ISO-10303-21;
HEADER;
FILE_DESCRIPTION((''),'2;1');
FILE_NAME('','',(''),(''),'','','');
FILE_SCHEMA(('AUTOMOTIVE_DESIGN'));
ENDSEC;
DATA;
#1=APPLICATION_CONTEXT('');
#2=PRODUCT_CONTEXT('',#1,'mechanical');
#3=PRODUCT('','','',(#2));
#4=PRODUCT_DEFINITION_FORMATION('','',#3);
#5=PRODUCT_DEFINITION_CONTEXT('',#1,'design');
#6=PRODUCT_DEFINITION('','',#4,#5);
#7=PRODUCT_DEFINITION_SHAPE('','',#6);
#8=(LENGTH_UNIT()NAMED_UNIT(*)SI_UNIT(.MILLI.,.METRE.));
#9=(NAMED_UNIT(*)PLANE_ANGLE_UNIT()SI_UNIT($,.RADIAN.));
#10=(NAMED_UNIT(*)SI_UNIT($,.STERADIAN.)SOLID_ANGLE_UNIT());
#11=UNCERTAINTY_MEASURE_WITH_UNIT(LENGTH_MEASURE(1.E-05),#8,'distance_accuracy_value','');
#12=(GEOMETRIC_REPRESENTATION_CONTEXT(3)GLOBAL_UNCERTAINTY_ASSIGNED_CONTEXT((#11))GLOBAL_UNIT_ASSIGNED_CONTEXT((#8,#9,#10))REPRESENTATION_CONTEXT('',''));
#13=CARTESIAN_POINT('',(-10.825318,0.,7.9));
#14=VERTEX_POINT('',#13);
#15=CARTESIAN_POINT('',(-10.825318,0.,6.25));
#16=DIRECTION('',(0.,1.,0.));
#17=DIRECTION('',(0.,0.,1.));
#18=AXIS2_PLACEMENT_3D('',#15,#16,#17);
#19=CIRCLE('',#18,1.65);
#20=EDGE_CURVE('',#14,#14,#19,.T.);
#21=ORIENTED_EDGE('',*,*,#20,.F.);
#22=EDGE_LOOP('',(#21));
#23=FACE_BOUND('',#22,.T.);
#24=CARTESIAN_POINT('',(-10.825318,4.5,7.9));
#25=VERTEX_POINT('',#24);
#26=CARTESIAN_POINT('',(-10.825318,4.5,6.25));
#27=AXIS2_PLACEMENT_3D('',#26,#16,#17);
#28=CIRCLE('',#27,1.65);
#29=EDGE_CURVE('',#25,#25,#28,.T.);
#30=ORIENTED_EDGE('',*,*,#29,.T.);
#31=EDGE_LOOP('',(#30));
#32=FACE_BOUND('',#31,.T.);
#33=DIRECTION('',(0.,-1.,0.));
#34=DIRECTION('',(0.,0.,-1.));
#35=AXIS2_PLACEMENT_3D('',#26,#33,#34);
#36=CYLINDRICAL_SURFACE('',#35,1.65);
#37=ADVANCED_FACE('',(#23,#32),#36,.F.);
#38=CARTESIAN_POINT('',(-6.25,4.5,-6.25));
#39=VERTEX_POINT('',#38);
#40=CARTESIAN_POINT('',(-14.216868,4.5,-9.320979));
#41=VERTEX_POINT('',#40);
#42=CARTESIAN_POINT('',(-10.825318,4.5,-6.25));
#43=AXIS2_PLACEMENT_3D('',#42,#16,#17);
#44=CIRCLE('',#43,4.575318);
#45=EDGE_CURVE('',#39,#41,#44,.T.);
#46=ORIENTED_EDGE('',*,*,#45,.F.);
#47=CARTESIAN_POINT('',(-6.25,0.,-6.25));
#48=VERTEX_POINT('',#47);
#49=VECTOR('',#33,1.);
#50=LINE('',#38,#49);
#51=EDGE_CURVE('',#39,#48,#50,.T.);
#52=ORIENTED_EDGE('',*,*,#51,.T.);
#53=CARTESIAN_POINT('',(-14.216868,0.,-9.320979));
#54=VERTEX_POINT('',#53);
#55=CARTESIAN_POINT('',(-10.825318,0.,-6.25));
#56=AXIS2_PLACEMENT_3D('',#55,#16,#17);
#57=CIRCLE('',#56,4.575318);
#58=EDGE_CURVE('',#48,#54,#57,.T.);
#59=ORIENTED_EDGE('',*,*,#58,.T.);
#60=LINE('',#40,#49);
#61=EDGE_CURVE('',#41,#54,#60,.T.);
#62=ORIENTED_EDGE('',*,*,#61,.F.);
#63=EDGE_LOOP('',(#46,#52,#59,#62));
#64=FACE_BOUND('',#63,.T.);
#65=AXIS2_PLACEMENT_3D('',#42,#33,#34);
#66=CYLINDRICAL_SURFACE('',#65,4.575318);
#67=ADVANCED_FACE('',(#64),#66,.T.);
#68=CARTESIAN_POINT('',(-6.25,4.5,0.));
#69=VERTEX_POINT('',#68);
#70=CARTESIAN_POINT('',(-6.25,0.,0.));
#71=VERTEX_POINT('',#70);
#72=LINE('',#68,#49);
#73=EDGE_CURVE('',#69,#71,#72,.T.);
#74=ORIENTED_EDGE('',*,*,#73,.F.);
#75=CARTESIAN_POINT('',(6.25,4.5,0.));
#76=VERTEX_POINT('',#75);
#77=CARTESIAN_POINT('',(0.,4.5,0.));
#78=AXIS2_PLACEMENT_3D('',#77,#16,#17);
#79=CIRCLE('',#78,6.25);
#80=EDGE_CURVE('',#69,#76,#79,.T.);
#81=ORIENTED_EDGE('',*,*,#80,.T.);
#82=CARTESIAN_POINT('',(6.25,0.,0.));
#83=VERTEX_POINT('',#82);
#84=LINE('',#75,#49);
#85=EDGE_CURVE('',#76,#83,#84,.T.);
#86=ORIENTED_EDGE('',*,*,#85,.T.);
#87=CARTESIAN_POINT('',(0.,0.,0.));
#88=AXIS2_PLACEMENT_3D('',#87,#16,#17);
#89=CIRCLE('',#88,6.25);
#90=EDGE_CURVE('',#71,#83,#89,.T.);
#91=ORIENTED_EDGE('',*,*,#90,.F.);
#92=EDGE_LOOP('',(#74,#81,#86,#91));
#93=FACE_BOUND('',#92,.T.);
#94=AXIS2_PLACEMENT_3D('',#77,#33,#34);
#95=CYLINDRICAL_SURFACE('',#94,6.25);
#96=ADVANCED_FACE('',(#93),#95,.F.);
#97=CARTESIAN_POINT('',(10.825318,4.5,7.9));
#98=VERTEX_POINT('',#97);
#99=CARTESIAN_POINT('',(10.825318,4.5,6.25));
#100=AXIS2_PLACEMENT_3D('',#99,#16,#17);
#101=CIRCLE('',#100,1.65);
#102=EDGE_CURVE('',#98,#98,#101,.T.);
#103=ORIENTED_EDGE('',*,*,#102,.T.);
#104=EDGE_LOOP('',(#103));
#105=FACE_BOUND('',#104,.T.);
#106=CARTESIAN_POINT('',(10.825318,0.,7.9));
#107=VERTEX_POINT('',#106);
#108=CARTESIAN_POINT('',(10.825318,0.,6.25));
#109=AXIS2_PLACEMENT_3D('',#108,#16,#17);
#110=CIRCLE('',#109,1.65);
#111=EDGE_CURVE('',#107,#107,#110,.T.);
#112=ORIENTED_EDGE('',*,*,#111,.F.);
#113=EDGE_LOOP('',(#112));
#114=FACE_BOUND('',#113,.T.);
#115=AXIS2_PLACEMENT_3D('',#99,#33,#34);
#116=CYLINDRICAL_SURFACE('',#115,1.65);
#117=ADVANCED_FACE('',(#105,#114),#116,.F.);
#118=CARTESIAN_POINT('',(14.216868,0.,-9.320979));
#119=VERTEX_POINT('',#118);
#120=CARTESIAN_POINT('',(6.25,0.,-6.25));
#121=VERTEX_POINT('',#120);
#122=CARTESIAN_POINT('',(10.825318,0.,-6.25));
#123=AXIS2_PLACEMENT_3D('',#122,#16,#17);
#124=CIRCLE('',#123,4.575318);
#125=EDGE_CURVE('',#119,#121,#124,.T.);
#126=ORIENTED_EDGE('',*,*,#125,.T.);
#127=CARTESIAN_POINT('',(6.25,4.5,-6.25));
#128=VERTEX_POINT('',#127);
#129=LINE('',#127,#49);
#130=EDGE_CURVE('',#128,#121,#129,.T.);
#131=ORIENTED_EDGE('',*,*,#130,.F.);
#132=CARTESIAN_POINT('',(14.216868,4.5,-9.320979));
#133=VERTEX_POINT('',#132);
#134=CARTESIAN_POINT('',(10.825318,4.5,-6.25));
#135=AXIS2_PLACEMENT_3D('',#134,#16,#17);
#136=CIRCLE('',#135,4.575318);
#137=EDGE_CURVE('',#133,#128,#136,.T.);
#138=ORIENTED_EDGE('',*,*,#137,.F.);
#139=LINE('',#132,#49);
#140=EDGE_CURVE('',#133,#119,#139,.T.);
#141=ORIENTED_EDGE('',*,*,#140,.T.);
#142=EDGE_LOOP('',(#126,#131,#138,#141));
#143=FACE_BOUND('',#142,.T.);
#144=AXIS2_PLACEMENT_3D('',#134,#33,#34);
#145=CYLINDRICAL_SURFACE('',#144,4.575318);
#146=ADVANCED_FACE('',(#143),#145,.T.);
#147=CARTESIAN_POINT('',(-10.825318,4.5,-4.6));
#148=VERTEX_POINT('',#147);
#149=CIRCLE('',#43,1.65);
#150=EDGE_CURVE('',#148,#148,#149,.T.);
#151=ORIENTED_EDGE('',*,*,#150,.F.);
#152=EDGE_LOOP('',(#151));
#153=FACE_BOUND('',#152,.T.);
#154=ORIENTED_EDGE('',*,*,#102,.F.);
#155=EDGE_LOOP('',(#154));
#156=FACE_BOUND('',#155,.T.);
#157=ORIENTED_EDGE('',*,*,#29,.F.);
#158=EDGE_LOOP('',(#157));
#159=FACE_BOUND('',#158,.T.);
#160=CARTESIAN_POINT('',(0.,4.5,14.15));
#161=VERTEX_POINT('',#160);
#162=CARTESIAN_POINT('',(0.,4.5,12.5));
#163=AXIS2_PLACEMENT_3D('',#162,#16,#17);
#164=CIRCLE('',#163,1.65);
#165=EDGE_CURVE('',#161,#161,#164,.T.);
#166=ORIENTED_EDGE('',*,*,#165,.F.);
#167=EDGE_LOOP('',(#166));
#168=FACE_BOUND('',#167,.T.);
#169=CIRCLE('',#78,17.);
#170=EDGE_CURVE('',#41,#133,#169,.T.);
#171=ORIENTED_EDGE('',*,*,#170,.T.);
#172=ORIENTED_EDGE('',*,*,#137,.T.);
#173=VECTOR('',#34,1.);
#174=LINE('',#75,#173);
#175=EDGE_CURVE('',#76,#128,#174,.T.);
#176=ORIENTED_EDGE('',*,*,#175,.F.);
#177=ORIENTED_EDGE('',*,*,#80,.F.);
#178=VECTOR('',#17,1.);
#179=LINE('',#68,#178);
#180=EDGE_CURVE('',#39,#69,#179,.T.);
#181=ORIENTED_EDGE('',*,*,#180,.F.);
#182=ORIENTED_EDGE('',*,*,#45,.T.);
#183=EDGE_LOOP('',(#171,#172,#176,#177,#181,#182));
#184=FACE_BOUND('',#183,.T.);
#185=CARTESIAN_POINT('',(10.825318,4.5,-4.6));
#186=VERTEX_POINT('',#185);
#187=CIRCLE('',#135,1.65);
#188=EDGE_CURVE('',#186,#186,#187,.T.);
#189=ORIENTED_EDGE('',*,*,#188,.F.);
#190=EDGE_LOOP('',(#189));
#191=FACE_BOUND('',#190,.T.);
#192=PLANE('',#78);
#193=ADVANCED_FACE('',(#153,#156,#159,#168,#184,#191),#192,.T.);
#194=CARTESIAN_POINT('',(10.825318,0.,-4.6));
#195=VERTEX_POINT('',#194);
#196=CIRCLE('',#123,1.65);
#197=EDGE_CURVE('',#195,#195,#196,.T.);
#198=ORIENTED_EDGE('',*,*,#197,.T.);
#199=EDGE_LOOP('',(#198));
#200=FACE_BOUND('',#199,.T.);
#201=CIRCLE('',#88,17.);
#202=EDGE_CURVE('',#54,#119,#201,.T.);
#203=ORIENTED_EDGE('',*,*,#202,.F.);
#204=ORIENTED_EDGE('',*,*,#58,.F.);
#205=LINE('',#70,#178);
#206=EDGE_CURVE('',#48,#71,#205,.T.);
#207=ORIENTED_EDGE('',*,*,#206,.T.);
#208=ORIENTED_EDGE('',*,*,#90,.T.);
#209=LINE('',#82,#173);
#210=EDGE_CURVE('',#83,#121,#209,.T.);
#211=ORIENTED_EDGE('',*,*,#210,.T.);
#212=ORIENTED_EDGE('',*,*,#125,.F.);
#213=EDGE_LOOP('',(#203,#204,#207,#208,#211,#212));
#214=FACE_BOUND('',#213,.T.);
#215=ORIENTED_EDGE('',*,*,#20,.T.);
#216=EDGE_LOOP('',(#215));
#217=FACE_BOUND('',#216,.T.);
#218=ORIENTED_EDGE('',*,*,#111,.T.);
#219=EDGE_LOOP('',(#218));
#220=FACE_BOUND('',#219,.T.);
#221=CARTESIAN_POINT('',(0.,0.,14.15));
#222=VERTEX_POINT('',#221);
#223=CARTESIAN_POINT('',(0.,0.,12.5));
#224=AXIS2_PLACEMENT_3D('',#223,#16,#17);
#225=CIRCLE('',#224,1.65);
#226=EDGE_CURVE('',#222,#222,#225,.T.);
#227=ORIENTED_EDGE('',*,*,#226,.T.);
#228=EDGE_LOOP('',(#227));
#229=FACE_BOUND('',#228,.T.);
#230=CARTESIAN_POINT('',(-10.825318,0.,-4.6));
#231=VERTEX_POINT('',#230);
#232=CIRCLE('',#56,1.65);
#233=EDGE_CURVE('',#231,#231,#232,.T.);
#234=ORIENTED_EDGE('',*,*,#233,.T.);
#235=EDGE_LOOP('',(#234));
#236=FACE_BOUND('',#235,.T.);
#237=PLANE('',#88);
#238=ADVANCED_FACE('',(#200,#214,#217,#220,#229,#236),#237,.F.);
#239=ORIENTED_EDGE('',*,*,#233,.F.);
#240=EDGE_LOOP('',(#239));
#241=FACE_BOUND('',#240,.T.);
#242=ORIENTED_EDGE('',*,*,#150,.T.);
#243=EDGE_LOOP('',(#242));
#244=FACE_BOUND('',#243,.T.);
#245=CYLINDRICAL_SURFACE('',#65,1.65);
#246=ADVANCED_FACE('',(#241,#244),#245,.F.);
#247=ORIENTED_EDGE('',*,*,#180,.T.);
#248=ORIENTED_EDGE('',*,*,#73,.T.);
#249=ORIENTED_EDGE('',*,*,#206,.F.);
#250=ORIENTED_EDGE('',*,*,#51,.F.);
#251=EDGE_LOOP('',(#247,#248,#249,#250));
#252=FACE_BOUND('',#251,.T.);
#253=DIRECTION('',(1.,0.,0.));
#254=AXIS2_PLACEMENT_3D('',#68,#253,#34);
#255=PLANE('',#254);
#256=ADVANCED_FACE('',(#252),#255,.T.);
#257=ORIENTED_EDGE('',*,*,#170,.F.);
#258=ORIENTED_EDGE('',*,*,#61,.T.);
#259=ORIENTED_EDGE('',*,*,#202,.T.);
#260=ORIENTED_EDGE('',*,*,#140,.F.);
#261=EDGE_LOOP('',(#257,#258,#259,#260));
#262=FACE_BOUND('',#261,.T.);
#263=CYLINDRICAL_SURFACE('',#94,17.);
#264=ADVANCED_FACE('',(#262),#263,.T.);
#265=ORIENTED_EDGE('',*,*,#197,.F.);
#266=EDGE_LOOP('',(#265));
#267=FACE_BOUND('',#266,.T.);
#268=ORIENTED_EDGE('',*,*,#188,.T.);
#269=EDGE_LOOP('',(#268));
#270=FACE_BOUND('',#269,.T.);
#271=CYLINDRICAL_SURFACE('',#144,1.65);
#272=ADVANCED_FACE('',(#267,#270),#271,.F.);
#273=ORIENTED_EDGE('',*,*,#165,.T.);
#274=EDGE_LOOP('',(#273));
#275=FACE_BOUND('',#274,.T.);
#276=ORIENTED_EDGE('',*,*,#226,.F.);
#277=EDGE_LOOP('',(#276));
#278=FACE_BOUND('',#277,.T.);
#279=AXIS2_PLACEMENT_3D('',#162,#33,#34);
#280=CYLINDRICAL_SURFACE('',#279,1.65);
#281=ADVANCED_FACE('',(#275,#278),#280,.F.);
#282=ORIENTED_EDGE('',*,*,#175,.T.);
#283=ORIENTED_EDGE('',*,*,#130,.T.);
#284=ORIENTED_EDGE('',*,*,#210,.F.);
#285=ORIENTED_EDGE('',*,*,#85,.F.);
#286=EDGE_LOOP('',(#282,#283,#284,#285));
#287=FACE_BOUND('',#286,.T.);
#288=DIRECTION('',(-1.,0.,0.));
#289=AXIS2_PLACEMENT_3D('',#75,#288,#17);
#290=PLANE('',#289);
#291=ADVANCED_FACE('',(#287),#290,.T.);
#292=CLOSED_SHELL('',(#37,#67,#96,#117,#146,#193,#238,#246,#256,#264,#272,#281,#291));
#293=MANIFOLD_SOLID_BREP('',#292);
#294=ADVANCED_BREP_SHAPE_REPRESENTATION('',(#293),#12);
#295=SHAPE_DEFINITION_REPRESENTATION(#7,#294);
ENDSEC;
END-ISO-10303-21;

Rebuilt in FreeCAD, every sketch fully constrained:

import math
import FreeCAD as App
import Part
import Sketcher
from FreeCAD import Vector

doc = App.newDocument("Part")
params = doc.addObject("Spreadsheet::Sheet", "Params")
for row, (alias, value) in enumerate([
    ("sketch1_radius", "17 mm"),
    ("sketch1_diameter", "3.3 mm"),
    ("sketch1_radius2", "6.25 mm"),
    ("sketch1_height", "6.25 mm"),
    ("pad1_length", "4.5 mm"),
], start=1):
    params.set(f"A{row}", alias)
    params.set(f"B{row}", "=" + value)
    params.setAlias(f"B{row}", alias)

body = doc.addObject("PartDesign::Body", "Body")

# Sketch on XZ plane
sketch1 = doc.addObject("Sketcher::SketchObject", "Sketch")
body.addObject(sketch1)
sketch1.AttachmentSupport = (doc.XZ_Plane, [""])
sketch1.MapMode = "FlatFace"
sketch1.addGeometry([
    Part.LineSegment(Vector(6.2, -6.2, 0), Vector(6.2, 0, 0)),  # 0
    Part.ArcOfCircle(Part.Circle(Vector(0, 0, 0), Vector(0, 0, 1), 6.2), math.radians(0), math.radians(180)),  # 1
    Part.LineSegment(Vector(-6.2, 0, 0), Vector(-6.2, -6.2, 0)),  # 2
    Part.ArcOfCircle(Part.Circle(Vector(-10.8, -6.2, 0), Vector(0, 0, 1), 4.6), math.radians(-138), math.radians(0)),  # 3
    Part.ArcOfCircle(Part.Circle(Vector(0, 0, 0), Vector(0, 0, 1), 17), math.radians(-153.25), math.radians(-146.75)),  # 4
    Part.ArcOfCircle(Part.Circle(Vector(0, 0, 0), Vector(0, 0, 1), 17), math.radians(-27), math.radians(207)),  # 5
    Part.ArcOfCircle(Part.Circle(Vector(0, 0, 0), Vector(0, 0, 1), 17), math.radians(-33.25), math.radians(-26.75)),  # 6
    Part.ArcOfCircle(Part.Circle(Vector(10.8, -6.2, 0), Vector(0, 0, 1), 4.6), math.radians(180), math.radians(318)),  # 7
    Part.Circle(Vector(-10.8, 6.2, 0), Vector(0, 0, 1), 1.6),  # 8
    Part.Circle(Vector(0, 12.5, 0), Vector(0, 0, 1), 1.6),  # 9
    Part.Circle(Vector(10.8, 6.2, 0), Vector(0, 0, 1), 1.6),  # 10
    Part.Circle(Vector(-10.8, -6.2, 0), Vector(0, 0, 1), 1.6),  # 11
    Part.Circle(Vector(10.8, -6.2, 0), Vector(0, 0, 1), 1.6),  # 12
], False)
sketch1.addConstraint([
    Sketcher.Constraint("Tangent", 0, 2, 1, 1),
    Sketcher.Constraint("Tangent", 1, 2, 2, 1),
    Sketcher.Constraint("Tangent", 2, 2, 3, 2),
    Sketcher.Constraint("Coincident", 3, 1, 4, 2),
    Sketcher.Constraint("Tangent", 4, 1, 5, 2),
    Sketcher.Constraint("Tangent", 5, 1, 6, 2),
    Sketcher.Constraint("Coincident", 6, 1, 7, 2),
    Sketcher.Constraint("Tangent", 7, 1, 0, 1),
    Sketcher.Constraint("Vertical", 0),
    Sketcher.Constraint("Vertical", 2),
    Sketcher.Constraint("Coincident", 1, 3, -1, 1),
    Sketcher.Constraint("Coincident", 4, 3, -1, 1),
    Sketcher.Constraint("Coincident", 6, 3, -1, 1),
    Sketcher.Constraint("Coincident", 11, 3, 3, 3),
    Sketcher.Constraint("Coincident", 12, 3, 7, 3),
    Sketcher.Constraint("Equal", 3, 7),
    Sketcher.Constraint("Equal", 8, 9),
    Sketcher.Constraint("Equal", 9, 10),
    Sketcher.Constraint("Equal", 10, 11),
    Sketcher.Constraint("Equal", 11, 12),
    Sketcher.Constraint("Symmetric", 7, 3, 8, 3, -1, 1),
    Sketcher.Constraint("Symmetric", 3, 3, 10, 3, -1, 1),
    Sketcher.Constraint("PointOnObject", 9, 3, -2),
    Sketcher.Constraint("Horizontal", 3, 3, 7, 3),
    Sketcher.Constraint("Horizontal", 4, 1, 5, 1),
    Sketcher.Constraint("Radius", 4, 17.0),
    Sketcher.Constraint("Diameter", 8, 3.3),
    Sketcher.Constraint("Radius", 1, 6.25),
    Sketcher.Constraint("DistanceY", 0, 1, 0, 2, 6.25),
    Sketcher.Constraint("DistanceY", -1, 1, 9, 3, 12.5),
    Sketcher.Constraint("Radius", 3, 4.575318),
    Sketcher.Constraint("DistanceY", 3, 1, 4, 1, 1.6693),
])
sketch1.setExpression("Constraints[25]", "Params.sketch1_radius")
sketch1.setExpression("Constraints[26]", "Params.sketch1_diameter")
sketch1.setExpression("Constraints[27]", "Params.sketch1_radius2")
sketch1.setExpression("Constraints[28]", "Params.sketch1_height")
pad1 = doc.addObject("PartDesign::Pad", "Pad")
body.addObject(pad1)
pad1.Profile = sketch1
pad1.setExpression("Length", "Params.pad1_length")
pad1.Reversed = True

doc.recompute()
